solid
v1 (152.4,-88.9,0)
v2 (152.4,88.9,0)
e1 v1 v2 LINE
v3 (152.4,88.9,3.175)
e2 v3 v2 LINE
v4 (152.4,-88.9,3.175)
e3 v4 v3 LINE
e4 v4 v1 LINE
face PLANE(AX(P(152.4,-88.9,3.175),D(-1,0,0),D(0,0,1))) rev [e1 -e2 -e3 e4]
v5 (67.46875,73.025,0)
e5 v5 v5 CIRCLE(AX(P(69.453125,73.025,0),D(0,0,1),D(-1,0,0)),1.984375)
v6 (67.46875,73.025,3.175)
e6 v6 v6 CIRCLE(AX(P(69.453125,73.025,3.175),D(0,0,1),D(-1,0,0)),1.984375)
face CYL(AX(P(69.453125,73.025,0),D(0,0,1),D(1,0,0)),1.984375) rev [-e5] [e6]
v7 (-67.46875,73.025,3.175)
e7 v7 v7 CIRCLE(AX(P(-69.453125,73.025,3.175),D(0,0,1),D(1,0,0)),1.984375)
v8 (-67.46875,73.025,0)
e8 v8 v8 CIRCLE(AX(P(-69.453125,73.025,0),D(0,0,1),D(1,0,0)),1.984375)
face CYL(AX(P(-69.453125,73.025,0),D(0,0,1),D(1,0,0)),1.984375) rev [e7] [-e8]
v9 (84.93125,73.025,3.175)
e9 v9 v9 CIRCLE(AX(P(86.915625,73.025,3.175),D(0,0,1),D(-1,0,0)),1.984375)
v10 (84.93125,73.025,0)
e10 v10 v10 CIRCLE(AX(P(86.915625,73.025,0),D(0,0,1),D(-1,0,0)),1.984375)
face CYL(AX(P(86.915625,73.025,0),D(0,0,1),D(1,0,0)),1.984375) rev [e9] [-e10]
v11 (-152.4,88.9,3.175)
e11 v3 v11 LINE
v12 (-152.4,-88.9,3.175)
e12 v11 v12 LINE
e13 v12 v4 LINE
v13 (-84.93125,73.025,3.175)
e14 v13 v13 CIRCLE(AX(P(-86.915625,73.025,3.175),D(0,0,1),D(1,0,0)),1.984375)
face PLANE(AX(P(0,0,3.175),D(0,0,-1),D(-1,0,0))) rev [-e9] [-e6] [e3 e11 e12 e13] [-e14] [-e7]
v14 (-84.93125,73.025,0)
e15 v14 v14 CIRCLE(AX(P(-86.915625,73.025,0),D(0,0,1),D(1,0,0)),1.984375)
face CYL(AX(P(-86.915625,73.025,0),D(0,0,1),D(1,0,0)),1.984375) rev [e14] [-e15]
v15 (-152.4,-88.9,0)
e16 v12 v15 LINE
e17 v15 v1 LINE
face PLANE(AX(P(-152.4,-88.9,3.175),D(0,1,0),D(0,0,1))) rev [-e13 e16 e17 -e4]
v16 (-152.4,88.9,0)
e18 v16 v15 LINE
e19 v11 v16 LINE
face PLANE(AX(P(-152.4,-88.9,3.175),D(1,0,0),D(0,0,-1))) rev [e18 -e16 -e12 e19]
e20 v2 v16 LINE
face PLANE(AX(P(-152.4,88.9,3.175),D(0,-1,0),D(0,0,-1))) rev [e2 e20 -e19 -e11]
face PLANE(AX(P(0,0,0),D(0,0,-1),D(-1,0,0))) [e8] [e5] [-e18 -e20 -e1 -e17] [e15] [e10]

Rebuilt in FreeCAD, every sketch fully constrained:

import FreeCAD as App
import Part
import Sketcher
Q = App.Units.Quantity


def add_polygon(sketch, points):
    """Adds a closed chain of lines whose ends are joined by coincident constraints."""
    first, n = sketch.GeometryCount, len(points)
    for a, b in zip(points, points[1:] + points[:1]):
        sketch.addGeometry(Part.LineSegment(App.Vector(*a, 0), App.Vector(*b, 0)), False)
    for i in range(n):
        sketch.addConstraint(Sketcher.Constraint("Coincident", first + i, 2, first + (i + 1) % n, 1))

doc = App.newDocument("Part")
params = doc.addObject("Spreadsheet::Sheet", "Params")
for row, (alias, value) in enumerate([
    ("sketch1_width", "12 in"),
    ("sketch1_height", "7 in"),
    ("pad1_length", "0.125 in"),
    ("sketch2_diameter", "0.15625 in"),
], start=1):
    params.set(f"A{row}", alias)
    params.set(f"B{row}", "=" + value)
    params.setAlias(f"B{row}", alias)

body = doc.addObject("PartDesign::Body", "Body")

# Sketch on XY plane
sketch1 = doc.addObject("Sketcher::SketchObject", "Sketch")
body.addObject(sketch1)
sketch1.AttachmentSupport = (doc.XY_Plane, [""])
sketch1.MapMode = "FlatFace"
add_polygon(sketch1, [(-152, 89), (-152, -89), (152, -89), (152, 89)])  # lines 0-3
sketch1.addConstraint(Sketcher.Constraint("Vertical", 0))
sketch1.addConstraint(Sketcher.Constraint("Horizontal", 1))
sketch1.addConstraint(Sketcher.Constraint("Vertical", 2))
sketch1.addConstraint(Sketcher.Constraint("Horizontal", 3))
sketch1.addConstraint(Sketcher.Constraint("Symmetric", 0, 2, 2, 2, -1, 1))
sketch1.addConstraint(Sketcher.Constraint("DistanceX", 1, 1, 1, 2, Q("12 in")))
sketch1.addConstraint(Sketcher.Constraint("DistanceY", 0, 2, 0, 1, Q("7 in")))
sketch1.setExpression("Constraints[9]", "Params.sketch1_width")
sketch1.setExpression("Constraints[10]", "Params.sketch1_height")
pad1 = doc.addObject("PartDesign::Pad", "Pad")
body.addObject(pad1)
pad1.Profile = sketch1
pad1.setExpression("Length", "Params.pad1_length")

# Sketch on XY plane
sketch2 = doc.addObject("Sketcher::SketchObject", "Sketch001")
body.addObject(sketch2)
sketch2.AttachmentSupport = (doc.XY_Plane, [""])
sketch2.MapMode = "FlatFace"
sketch2.AttachmentOffset = App.Placement(App.Vector(0, 0, 0.125 * 25.4), App.Rotation())
sketch2.addGeometry(Part.Circle(App.Vector(-86.9, 73, 0), App.Vector(0, 0, 1), 2), False)
sketch2.addGeometry(Part.Circle(App.Vector(-69.5, 73, 0), App.Vector(0, 0, 1), 2), False)
sketch2.addGeometry(Part.Circle(App.Vector(69.5, 73, 0), App.Vector(0, 0, 1), 2), False)
sketch2.addGeometry(Part.Circle(App.Vector(86.9, 73, 0), App.Vector(0, 0, 1), 2), False)
sketch2.addConstraint(Sketcher.Constraint("Equal", 0, 1))
sketch2.addConstraint(Sketcher.Constraint("Equal", 1, 2))
sketch2.addConstraint(Sketcher.Constraint("Equal", 2, 3))
sketch2.addConstraint(Sketcher.Constraint("Symmetric", 1, 3, 2, 3, -2))
sketch2.addConstraint(Sketcher.Constraint("Symmetric", 0, 3, 3, 3, -2))
sketch2.addConstraint(Sketcher.Constraint("Horizontal", 0, 3, 1, 3))
sketch2.addConstraint(Sketcher.Constraint("Diameter", 0, Q("0.15625 in")))
sketch2.addConstraint(Sketcher.Constraint("DistanceX", 0, 3, -1, 1, Q("3.421875 in")))
sketch2.addConstraint(Sketcher.Constraint("DistanceY", -1, 1, 0, 3, Q("2.875 in")))
sketch2.addConstraint(Sketcher.Constraint("DistanceX", 1, 3, -1, 1, Q("2.734375 in")))
sketch2.setExpression("Constraints[6]", "Params.sketch2_diameter")
pocket1 = doc.addObject("PartDesign::Pocket", "Pocket")
body.addObject(pocket1)
pocket1.Profile = sketch2
pocket1.Type = "ThroughAll"

doc.recompute()
